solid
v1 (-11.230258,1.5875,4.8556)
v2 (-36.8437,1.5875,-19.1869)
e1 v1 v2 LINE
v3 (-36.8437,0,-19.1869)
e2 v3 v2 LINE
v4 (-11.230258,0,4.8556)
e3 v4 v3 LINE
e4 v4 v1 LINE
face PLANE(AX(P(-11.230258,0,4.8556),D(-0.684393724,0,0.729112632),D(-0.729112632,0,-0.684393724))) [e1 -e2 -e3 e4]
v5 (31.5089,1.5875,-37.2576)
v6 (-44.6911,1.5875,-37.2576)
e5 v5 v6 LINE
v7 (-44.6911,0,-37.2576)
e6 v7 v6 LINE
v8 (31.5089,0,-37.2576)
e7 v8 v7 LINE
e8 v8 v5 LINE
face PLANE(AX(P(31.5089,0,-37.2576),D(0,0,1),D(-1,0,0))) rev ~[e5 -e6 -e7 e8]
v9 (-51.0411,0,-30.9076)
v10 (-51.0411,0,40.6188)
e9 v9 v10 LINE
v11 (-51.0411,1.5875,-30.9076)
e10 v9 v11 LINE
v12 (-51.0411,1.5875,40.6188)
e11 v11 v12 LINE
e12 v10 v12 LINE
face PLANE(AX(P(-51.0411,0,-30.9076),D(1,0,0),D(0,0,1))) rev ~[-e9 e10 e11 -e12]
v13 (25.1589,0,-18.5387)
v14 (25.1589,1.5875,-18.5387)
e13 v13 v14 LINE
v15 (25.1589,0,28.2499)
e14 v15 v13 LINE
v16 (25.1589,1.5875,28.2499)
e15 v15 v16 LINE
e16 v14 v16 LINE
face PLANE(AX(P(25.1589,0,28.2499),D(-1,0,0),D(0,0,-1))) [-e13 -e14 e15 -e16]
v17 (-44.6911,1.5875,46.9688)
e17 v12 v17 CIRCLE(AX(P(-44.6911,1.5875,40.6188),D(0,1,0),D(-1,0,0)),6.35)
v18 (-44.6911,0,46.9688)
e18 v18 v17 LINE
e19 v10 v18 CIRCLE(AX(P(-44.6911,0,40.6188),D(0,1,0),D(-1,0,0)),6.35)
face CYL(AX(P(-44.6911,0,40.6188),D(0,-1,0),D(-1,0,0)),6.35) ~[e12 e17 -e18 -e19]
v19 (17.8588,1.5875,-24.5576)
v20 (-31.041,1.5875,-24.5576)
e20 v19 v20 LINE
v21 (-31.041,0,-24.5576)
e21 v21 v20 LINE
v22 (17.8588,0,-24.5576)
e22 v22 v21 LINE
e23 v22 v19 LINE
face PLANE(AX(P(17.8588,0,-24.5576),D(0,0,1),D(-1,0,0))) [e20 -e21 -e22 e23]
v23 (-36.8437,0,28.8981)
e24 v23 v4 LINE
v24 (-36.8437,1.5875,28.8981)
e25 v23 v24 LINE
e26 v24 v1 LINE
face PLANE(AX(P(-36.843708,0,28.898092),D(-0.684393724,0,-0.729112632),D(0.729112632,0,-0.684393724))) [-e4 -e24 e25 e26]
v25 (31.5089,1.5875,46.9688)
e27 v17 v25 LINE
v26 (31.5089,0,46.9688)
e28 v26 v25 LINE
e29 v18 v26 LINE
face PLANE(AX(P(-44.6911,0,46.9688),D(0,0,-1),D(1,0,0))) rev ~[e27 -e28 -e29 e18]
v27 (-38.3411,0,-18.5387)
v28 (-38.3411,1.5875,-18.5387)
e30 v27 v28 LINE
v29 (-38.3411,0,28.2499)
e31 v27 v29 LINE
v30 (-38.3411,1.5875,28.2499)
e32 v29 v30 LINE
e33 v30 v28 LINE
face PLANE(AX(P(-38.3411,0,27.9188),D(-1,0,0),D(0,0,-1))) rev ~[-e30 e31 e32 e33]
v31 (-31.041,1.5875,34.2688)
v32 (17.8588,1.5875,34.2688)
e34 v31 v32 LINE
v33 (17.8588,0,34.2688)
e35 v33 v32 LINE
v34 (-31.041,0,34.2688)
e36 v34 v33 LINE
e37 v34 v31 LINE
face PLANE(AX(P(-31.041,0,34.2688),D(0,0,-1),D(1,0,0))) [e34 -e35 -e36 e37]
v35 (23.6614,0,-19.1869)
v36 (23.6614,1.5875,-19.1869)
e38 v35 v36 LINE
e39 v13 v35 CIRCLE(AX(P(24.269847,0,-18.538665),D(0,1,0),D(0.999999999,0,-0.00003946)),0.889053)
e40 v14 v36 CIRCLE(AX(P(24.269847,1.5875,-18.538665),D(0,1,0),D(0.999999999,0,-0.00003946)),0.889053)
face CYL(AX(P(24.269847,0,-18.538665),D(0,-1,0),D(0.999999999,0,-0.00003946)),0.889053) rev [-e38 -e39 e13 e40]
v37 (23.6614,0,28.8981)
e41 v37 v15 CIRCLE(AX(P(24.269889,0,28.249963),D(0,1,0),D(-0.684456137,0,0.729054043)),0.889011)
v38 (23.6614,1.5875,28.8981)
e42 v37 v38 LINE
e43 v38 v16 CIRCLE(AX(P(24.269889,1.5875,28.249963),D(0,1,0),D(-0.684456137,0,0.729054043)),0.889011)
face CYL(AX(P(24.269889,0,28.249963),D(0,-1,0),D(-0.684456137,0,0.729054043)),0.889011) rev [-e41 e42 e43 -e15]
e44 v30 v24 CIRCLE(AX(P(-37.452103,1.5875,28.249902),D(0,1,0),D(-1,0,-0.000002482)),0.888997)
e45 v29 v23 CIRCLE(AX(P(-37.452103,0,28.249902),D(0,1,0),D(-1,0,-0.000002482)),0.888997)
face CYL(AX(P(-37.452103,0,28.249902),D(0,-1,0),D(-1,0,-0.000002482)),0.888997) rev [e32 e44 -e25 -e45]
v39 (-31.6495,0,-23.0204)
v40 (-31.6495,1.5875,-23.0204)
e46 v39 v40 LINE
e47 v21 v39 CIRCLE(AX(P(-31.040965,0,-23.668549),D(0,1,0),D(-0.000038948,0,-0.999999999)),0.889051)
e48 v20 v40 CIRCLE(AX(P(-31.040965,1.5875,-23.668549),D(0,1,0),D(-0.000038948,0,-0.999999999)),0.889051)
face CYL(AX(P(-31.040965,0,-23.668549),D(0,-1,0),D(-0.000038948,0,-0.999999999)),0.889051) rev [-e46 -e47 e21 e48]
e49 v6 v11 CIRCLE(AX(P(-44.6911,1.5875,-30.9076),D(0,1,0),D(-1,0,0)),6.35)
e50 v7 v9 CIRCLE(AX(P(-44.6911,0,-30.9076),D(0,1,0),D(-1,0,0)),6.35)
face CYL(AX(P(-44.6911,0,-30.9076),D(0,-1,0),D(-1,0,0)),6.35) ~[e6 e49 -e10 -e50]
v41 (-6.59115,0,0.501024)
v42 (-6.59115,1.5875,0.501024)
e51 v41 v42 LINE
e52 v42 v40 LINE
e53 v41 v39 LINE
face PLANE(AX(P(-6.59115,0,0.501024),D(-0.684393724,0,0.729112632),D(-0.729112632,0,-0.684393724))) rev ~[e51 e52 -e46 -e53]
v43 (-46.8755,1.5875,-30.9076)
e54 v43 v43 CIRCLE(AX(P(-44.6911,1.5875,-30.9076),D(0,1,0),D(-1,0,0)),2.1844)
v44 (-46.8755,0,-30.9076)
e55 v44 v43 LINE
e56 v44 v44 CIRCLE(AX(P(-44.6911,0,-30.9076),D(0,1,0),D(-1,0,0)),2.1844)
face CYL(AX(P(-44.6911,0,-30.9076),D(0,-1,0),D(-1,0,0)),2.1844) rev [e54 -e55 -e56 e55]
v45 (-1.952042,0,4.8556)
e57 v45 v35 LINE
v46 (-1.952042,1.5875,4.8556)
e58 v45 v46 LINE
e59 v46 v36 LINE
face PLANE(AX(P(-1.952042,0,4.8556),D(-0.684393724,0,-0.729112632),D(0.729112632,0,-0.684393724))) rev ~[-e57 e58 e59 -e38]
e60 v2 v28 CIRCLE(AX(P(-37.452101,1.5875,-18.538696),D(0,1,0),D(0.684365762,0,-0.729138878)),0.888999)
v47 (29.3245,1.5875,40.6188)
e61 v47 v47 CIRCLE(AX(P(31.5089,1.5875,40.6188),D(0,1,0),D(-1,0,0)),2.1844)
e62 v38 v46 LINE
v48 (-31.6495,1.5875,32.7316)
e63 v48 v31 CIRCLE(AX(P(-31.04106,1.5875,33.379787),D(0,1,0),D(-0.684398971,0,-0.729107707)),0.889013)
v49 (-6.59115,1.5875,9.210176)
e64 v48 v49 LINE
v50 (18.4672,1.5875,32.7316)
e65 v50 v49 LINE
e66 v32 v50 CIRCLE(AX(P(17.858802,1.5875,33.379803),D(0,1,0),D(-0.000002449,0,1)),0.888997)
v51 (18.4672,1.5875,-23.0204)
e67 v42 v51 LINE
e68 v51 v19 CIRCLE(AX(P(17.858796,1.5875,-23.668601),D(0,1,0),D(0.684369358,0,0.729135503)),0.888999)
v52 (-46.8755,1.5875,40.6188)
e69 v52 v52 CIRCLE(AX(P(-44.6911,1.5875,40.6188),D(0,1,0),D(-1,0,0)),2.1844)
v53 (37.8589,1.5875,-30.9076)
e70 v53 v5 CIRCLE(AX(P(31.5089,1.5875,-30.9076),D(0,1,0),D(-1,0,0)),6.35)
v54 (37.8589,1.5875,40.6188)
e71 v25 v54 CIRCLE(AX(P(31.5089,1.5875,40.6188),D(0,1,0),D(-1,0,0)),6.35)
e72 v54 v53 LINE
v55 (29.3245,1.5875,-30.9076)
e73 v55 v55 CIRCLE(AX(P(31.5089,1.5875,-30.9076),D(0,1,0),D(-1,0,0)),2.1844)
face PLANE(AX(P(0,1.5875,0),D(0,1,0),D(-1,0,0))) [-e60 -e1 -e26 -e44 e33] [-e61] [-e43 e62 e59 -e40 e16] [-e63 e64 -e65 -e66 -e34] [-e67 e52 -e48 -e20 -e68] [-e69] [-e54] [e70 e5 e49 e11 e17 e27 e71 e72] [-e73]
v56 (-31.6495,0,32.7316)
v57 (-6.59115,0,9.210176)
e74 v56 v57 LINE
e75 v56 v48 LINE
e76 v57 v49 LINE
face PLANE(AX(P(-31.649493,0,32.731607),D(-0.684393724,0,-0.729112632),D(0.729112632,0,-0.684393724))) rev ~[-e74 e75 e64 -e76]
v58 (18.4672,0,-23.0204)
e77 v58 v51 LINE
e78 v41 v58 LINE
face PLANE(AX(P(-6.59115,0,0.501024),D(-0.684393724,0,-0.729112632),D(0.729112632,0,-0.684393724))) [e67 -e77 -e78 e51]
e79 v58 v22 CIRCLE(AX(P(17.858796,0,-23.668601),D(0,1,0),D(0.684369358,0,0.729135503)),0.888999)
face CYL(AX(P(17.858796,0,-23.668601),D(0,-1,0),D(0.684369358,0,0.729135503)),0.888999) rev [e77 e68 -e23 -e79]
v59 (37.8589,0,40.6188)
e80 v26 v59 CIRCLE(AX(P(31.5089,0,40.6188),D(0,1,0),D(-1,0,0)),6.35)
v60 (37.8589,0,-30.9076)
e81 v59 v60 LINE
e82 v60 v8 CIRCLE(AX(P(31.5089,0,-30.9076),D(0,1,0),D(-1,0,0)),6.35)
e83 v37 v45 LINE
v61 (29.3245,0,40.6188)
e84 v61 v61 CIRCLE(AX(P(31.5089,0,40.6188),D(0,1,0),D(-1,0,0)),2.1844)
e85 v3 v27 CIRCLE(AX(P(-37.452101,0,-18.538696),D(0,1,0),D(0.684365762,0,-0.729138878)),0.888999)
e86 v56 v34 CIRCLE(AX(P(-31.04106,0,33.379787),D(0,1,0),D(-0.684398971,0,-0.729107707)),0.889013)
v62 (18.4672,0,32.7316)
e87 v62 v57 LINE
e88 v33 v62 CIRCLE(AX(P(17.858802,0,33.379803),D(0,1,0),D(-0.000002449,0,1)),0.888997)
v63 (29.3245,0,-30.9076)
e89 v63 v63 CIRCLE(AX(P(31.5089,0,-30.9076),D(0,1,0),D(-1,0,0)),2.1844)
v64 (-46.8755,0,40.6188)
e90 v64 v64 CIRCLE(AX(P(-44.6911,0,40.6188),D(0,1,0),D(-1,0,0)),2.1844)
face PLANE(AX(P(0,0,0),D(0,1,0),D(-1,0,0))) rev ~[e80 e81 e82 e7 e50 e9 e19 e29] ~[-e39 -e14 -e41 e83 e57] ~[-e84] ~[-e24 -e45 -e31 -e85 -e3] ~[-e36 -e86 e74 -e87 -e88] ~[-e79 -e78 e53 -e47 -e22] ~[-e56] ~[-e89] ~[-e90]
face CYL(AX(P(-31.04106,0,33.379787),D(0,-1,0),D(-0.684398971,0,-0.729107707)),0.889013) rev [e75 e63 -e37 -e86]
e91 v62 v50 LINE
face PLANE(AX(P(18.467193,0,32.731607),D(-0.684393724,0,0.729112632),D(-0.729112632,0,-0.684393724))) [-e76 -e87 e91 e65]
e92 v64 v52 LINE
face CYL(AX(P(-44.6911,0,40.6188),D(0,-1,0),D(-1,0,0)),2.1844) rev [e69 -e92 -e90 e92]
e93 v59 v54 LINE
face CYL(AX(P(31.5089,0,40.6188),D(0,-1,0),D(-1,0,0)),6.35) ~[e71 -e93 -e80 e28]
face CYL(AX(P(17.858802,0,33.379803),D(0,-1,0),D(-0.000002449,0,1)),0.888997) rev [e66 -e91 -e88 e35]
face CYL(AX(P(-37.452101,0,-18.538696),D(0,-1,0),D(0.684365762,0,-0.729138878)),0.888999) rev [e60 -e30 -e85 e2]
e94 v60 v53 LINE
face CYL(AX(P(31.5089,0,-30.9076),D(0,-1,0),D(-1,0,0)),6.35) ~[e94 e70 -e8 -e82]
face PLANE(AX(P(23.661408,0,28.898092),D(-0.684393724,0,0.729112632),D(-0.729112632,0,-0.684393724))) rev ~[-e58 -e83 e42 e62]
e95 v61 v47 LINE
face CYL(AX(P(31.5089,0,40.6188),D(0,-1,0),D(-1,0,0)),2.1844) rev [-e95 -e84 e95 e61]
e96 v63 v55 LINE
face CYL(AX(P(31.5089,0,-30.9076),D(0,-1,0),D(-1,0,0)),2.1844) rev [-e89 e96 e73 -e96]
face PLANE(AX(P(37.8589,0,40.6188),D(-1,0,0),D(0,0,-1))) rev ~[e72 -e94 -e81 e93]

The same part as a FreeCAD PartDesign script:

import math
import FreeCAD as App
import Part
import Sketcher

V = App.Vector
Q = App.Units.Quantity

doc = App.newDocument("Part")
params = doc.addObject("Spreadsheet::Sheet", "Params")
for row, (alias, value) in enumerate([
    ("sketch1_radius", "0.25 in"),
    ("sketch1_radius2", "0.25 in"),
    ("sketch1_radius3", "0.25 in"),
    ("sketch1_radius4", "0.25 in"),
    ("sketch1_radius5", "0.035 in"),
    ("pad1_length", "0.0625 in"),
], start=1):
    params.set(f"A{row}", alias)
    params.set(f"B{row}", "=" + value)
    params.setAlias(f"B{row}", alias)

body = doc.addObject("PartDesign::Body", "Body")

sketch1 = body.newObject("Sketcher::SketchObject", "Sketch")
sketch1.AttachmentSupport = (doc.getObject("XZ_Plane"), [""])
sketch1.MapMode = "FlatFace"
sketch1.addGeometry(Part.ArcOfCircle(Part.Circle(V(-44.6911, 40.6188, 0), V(0, 0, 1), 6.35), math.radians(90), math.radians(180)), False)
sketch1.addGeometry(Part.LineSegment(V(-44.6911, 46.9688, 0), V(31.5089, 46.9688, 0)), False)
sketch1.addGeometry(Part.ArcOfCircle(Part.Circle(V(31.5089, 40.6188, 0), V(0, 0, 1), 6.35), math.radians(0), math.radians(90)), False)
sketch1.addGeometry(Part.LineSegment(V(37.8589, 40.6188, 0), V(37.8589, -30.9076, 0)), False)
sketch1.addGeometry(Part.ArcOfCircle(Part.Circle(V(31.5089, -30.9076, 0), V(0, 0, 1), 6.35), math.radians(-90), math.radians(0)), False)
sketch1.addGeometry(Part.LineSegment(V(31.5089, -37.2576, 0), V(-44.6911, -37.2576, 0)), False)
sketch1.addGeometry(Part.ArcOfCircle(Part.Circle(V(-44.6911, -30.9076, 0), V(0, 0, 1), 6.35), math.radians(180), math.radians(270)), False)
sketch1.addGeometry(Part.LineSegment(V(-51.0411, -30.9076, 0), V(-51.0411, 40.6188, 0)), False)
sketch1.addGeometry(Part.ArcOfCircle(Part.Circle(V(-37.4521, -18.5387, 0), V(0, 0, 1), 0.888996), math.radians(180), math.radians(313.185891)), False)
sketch1.addGeometry(Part.LineSegment(V(-36.843708, -19.186892, 0), V(-11.230258, 4.8556, 0)), False)
sketch1.addGeometry(Part.LineSegment(V(-11.230258, 4.8556, 0), V(-36.843708, 28.898092, 0)), False)
sketch1.addGeometry(Part.ArcOfCircle(Part.Circle(V(-37.4521, 28.2499, 0), V(0, 0, 1), 0.889), math.radians(46.814109), math.radians(180)), False)
sketch1.addGeometry(Part.LineSegment(V(-38.3411, 28.2499, 0), V(-38.3411, -18.5387, 0)), False)
sketch1.addGeometry(Part.Circle(V(-44.6911, 40.6188, 0), V(0, 0, 1), 2.1844), False)
sketch1.addGeometry(Part.LineSegment(V(17.8588, 34.2688, 0), V(-31.041, 34.2688, 0)), False)
sketch1.addGeometry(Part.ArcOfCircle(Part.Circle(V(-31.041, 33.3798, 0), V(0, 0, 1), 0.889064), math.radians(90), math.radians(226.809411)), False)
sketch1.addGeometry(Part.LineSegment(V(-31.649493, 32.731607, 0), V(-6.59115, 9.210176, 0)), False)
sketch1.addGeometry(Part.LineSegment(V(-6.59115, 9.210176, 0), V(18.467193, 32.731607, 0)), False)
sketch1.addGeometry(Part.ArcOfCircle(Part.Circle(V(17.8588, 33.3798, 0), V(0, 0, 1), 0.889), math.radians(-46.814109), math.radians(90)), False)
sketch1.addGeometry(Part.LineSegment(V(-31.041, -24.5576, 0), V(17.8588, -24.5576, 0)), False)
sketch1.addGeometry(Part.ArcOfCircle(Part.Circle(V(17.8588, -23.6686, 0), V(0, 0, 1), 0.888996), math.radians(-90), math.radians(46.814109)), False)
sketch1.addGeometry(Part.LineSegment(V(18.467193, -23.020407, 0), V(-6.59115, 0.501024, 0)), False)
sketch1.addGeometry(Part.LineSegment(V(-6.59115, 0.501024, 0), V(-31.649493, -23.020407, 0)), False)
sketch1.addGeometry(Part.ArcOfCircle(Part.Circle(V(-31.041, -23.6686, 0), V(0, 0, 1), 0.889), math.radians(133.190589), math.radians(270)), False)
sketch1.addGeometry(Part.Circle(V(-44.6911, -30.9076, 0), V(0, 0, 1), 2.1844), False)
sketch1.addGeometry(Part.Circle(V(31.5089, 40.6188, 0), V(0, 0, 1), 2.1844), False)
sketch1.addGeometry(Part.ArcOfCircle(Part.Circle(V(24.2699, 28.2499, 0), V(0, 0, 1), 0.889064), math.radians(0), math.radians(133.190589)), False)
sketch1.addGeometry(Part.LineSegment(V(23.661408, 28.898092, 0), V(-1.952042, 4.8556, 0)), False)
sketch1.addGeometry(Part.LineSegment(V(-1.952042, 4.8556, 0), V(23.661408, -19.186892, 0)), False)
sketch1.addGeometry(Part.ArcOfCircle(Part.Circle(V(24.2699, -18.5387, 0), V(0, 0, 1), 0.889), math.radians(-133.190589), math.radians(0)), False)
sketch1.addGeometry(Part.LineSegment(V(25.1589, -18.5387, 0), V(25.1589, 28.2499, 0)), False)
sketch1.addGeometry(Part.Circle(V(31.5089, -30.9076, 0), V(0, 0, 1), 2.1844), False)
sketch1.addConstraint(Sketcher.Constraint("Coincident", 0, 1, 1, 1))
sketch1.addConstraint(Sketcher.Constraint("Coincident", 1, 2, 2, 2))
sketch1.addConstraint(Sketcher.Constraint("Coincident", 2, 1, 3, 1))
sketch1.addConstraint(Sketcher.Constraint("Coincident", 3, 2, 4, 2))
sketch1.addConstraint(Sketcher.Constraint("Coincident", 4, 1, 5, 1))
sketch1.addConstraint(Sketcher.Constraint("Coincident", 5, 2, 6, 2))
sketch1.addConstraint(Sketcher.Constraint("Coincident", 6, 1, 7, 1))
sketch1.addConstraint(Sketcher.Constraint("Coincident", 7, 2, 0, 2))
sketch1.addConstraint(Sketcher.Constraint("Coincident", 8, 2, 9, 1))
sketch1.addConstraint(Sketcher.Constraint("Coincident", 9, 2, 10, 1))
sketch1.addConstraint(Sketcher.Constraint("Coincident", 10, 2, 11, 1))
sketch1.addConstraint(Sketcher.Constraint("Coincident", 11, 2, 12, 1))
sketch1.addConstraint(Sketcher.Constraint("Coincident", 12, 2, 8, 1))
sketch1.addConstraint(Sketcher.Constraint("Coincident", 14, 2, 15, 1))
sketch1.addConstraint(Sketcher.Constraint("Coincident", 15, 2, 16, 1))
sketch1.addConstraint(Sketcher.Constraint("Coincident", 16, 2, 17, 1))
sketch1.addConstraint(Sketcher.Constraint("Coincident", 17, 2, 18, 1))
sketch1.addConstraint(Sketcher.Constraint("Coincident", 18, 2, 14, 1))
sketch1.addConstraint(Sketcher.Constraint("Coincident", 19, 2, 20, 1))
sketch1.addConstraint(Sketcher.Constraint("Coincident", 20, 2, 21, 1))
sketch1.addConstraint(Sketcher.Constraint("Coincident", 21, 2, 22, 1))
sketch1.addConstraint(Sketcher.Constraint("Coincident", 22, 2, 23, 1))
sketch1.addConstraint(Sketcher.Constraint("Coincident", 23, 2, 19, 1))
sketch1.addConstraint(Sketcher.Constraint("Coincident", 26, 2, 27, 1))
sketch1.addConstraint(Sketcher.Constraint("Coincident", 27, 2, 28, 1))
sketch1.addConstraint(Sketcher.Constraint("Coincident", 28, 2, 29, 1))
sketch1.addConstraint(Sketcher.Constraint("Coincident", 29, 2, 30, 1))
sketch1.addConstraint(Sketcher.Constraint("Coincident", 30, 2, 26, 1))
sketch1.addConstraint(Sketcher.Constraint("Horizontal", 1))
sketch1.addConstraint(Sketcher.Constraint("Vertical", 3))
sketch1.addConstraint(Sketcher.Constraint("Horizontal", 5))
sketch1.addConstraint(Sketcher.Constraint("Vertical", 7))
sketch1.addConstraint(Sketcher.Constraint("Vertical", 12))
sketch1.addConstraint(Sketcher.Constraint("Horizontal", 14))
sketch1.addConstraint(Sketcher.Constraint("Horizontal", 19))
sketch1.addConstraint(Sketcher.Constraint("Vertical", 30))
sketch1.addConstraint(Sketcher.Constraint("Coincident", 13, 3, 0, 3))
sketch1.addConstraint(Sketcher.Constraint("Coincident", 24, 3, 6, 3))
sketch1.addConstraint(Sketcher.Constraint("Coincident", 25, 3, 2, 3))
sketch1.addConstraint(Sketcher.Constraint("Coincident", 31, 3, 4, 3))
sketch1.addConstraint(Sketcher.Constraint("Radius", 0, Q("0.25 in")))
sketch1.addConstraint(Sketcher.Constraint("Radius", 2, Q("0.25 in")))
sketch1.addConstraint(Sketcher.Constraint("Radius", 4, Q("0.25 in")))
sketch1.addConstraint(Sketcher.Constraint("Radius", 6, Q("0.25 in")))
sketch1.addConstraint(Sketcher.Constraint("Radius", 8, Q("0.035 in")))
sketch1.addConstraint(Sketcher.Constraint("Radius", 11, Q("0.035 in")))
sketch1.addConstraint(Sketcher.Constraint("Radius", 15, Q("0.035 in")))
sketch1.addConstraint(Sketcher.Constraint("Radius", 18, Q("0.035 in")))
sketch1.addConstraint(Sketcher.Constraint("Radius", 20, Q("0.035 in")))
sketch1.addConstraint(Sketcher.Constraint("Radius", 23, Q("0.035 in")))
sketch1.addConstraint(Sketcher.Constraint("Radius", 26, Q("0.035 in")))
sketch1.addConstraint(Sketcher.Constraint("Radius", 29, Q("0.035 in")))
sketch1.addConstraint(Sketcher.Constraint("DistanceY", 4, 1, 19, 2, Q("0.5 in")))
sketch1.addConstraint(Sketcher.Constraint("DistanceX", 1, 1, 1, 2, Q("3 in")))
sketch1.addConstraint(Sketcher.Constraint("DistanceX", 5, 2, 5, 1, Q("3 in")))
sketch1.addConstraint(Sketcher.Constraint("DistanceX", 1, 2, 2, 1, Q("0.25 in")))
sketch1.addConstraint(Sketcher.Constraint("DistanceY", 2, 1, 1, 2, Q("0.25 in")))
sketch1.addConstraint(Sketcher.Constraint("DistanceX", 4, 1, 3, 2, Q("0.25 in")))
sketch1.addConstraint(Sketcher.Constraint("DistanceY", 4, 1, 3, 2, Q("0.25 in")))
sketch1.addConstraint(Sketcher.Constraint("DistanceX", 6, 1, 5, 2, Q("0.25 in")))
sketch1.addConstraint(Sketcher.Constraint("DistanceY", 5, 2, 6, 1, Q("0.25 in")))
sketch1.addConstraint(Sketcher.Constraint("DistanceY", 7, 2, 0, 1, Q("0.25 in")))
sketch1.addConstraint(Sketcher.Constraint("DistanceX", 0, 3, 11, 2, Q("0.25 in")))
sketch1.addConstraint(Sketcher.Constraint("DistanceY", 14, 2, 0, 3, Q("0.25 in")))
sketch1.addConstraint(Sketcher.Constraint("Diameter", 13, Q("0.172 in")))
sketch1.addConstraint(Sketcher.Constraint("Diameter", 24, Q("0.172 in")))
sketch1.addConstraint(Sketcher.Constraint("Diameter", 25, Q("0.172 in")))
sketch1.addConstraint(Sketcher.Constraint("Diameter", 31, Q("0.172 in")))
sketch1.addConstraint(Sketcher.Constraint("DistanceY", 3, 2, 3, 1, Q("2.816 in")))
sketch1.addConstraint(Sketcher.Constraint("DistanceX", 14, 2, 14, 1, Q("1.9252 in")))
sketch1.addConstraint(Sketcher.Constraint("DistanceX", 19, 1, 19, 2, Q("1.9252 in")))
sketch1.addConstraint(Sketcher.Constraint("DistanceX", 26, 3, 2, 3, Q("0.285 in")))
sketch1.addConstraint(Sketcher.Constraint("DistanceY", 9, 2, 15, 3, Q("1.123 in")))
sketch1.addConstraint(Sketcher.Constraint("DistanceY", 12, 2, 12, 1, 46.7886))
sketch1.addConstraint(Sketcher.Constraint("DistanceY", 30, 1, 30, 2, 46.7886))
sketch1.addConstraint(Sketcher.Constraint("DistanceX", 0, 3, -1, 1, Q("1.7595 in")))
sketch1.addConstraint(Sketcher.Constraint("DistanceY", -1, 1, 11, 3, Q("1.1122 in")))
sketch1.addConstraint(Sketcher.Constraint("DistanceX", -1, 1, 18, 3, Q("0.7031 in")))
sketch1.addConstraint(Sketcher.Constraint("DistanceX", -1, 1, 20, 3, Q("0.7031 in")))
sketch1.addConstraint(Sketcher.Constraint("DistanceY", -1, 1, 26, 3, Q("1.1122 in")))
sketch1.addConstraint(Sketcher.Constraint("DistanceY", 8, 2, -1, 1, Q("0.7554 in")))
sketch1.addConstraint(Sketcher.Constraint("DistanceY", -1, 1, 11, 2, Q("1.1122 in")))
sketch1.addConstraint(Sketcher.Constraint("DistanceX", 16, 2, -1, 1, Q("0.2595 in")))
sketch1.addConstraint(Sketcher.Constraint("DistanceY", -1, 1, 16, 2, Q("0.3626 in")))
sketch1.addConstraint(Sketcher.Constraint("DistanceX", -1, 1, 18, 2, Q("0.7031 in")))
sketch1.addConstraint(Sketcher.Constraint("DistanceX", -1, 1, 19, 2, Q("0.7031 in")))
sketch1.addConstraint(Sketcher.Constraint("DistanceX", 21, 2, -1, 1, Q("0.2595 in")))
sketch1.addConstraint(Sketcher.Constraint("DistanceY", 28, 2, -1, 1, Q("0.7554 in")))
sketch1.addConstraint(Sketcher.Constraint("DistanceY", -1, 1, 30, 2, Q("1.1122 in")))
sketch1.addConstraint(Sketcher.Constraint("DistanceX", 11, 3, 15, 3, Q("0.2524 in")))
sketch1.addConstraint(Sketcher.Constraint("DistanceX", 8, 3, 23, 3, Q("0.2524 in")))
sketch1.addConstraint(Sketcher.Constraint("DistanceX", 8, 2, 9, 2, Q("1.0084 in")))
sketch1.addConstraint(Sketcher.Constraint("DistanceX", 10, 2, 15, 2, Q("0.2045 in")))
sketch1.addConstraint(Sketcher.Constraint("DistanceX", 8, 2, 22, 2, Q("0.2045 in")))
sketch1.addConstraint(Sketcher.Constraint("DistanceX", 17, 2, 26, 2, Q("0.2045 in")))
sketch1.addConstraint(Sketcher.Constraint("DistanceX", 27, 2, 20, 2, Q("0.8039 in")))
sketch1.addConstraint(Sketcher.Constraint("DistanceX", 27, 2, 17, 2, Q("0.8039 in")))
sketch1.addConstraint(Sketcher.Constraint("DistanceX", 20, 2, 28, 2, Q("0.2045 in")))
sketch1.addConstraint(Sketcher.Constraint("Distance", 9, 35.1296))
sketch1.addConstraint(Sketcher.Constraint("Distance", 10, 35.1296))
sketch1.addConstraint(Sketcher.Constraint("Distance", 16, 34.3683))
sketch1.addConstraint(Sketcher.Constraint("Distance", 17, 34.3683))
sketch1.addConstraint(Sketcher.Constraint("Distance", 21, 34.3683))
sketch1.addConstraint(Sketcher.Constraint("Distance", 27, 35.1296))
sketch1.setExpression("Constraints[40]", "Params.sketch1_radius")
sketch1.setExpression("Constraints[41]", "Params.sketch1_radius2")
sketch1.setExpression("Constraints[42]", "Params.sketch1_radius3")
sketch1.setExpression("Constraints[43]", "Params.sketch1_radius4")
sketch1.setExpression("Constraints[44]", "Params.sketch1_radius5")
pad1 = body.newObject("PartDesign::Pad", "Pad")
pad1.Profile = sketch1
pad1.setExpression("Length", "Params.pad1_length")
pad1.Reversed = True

doc.recompute()
